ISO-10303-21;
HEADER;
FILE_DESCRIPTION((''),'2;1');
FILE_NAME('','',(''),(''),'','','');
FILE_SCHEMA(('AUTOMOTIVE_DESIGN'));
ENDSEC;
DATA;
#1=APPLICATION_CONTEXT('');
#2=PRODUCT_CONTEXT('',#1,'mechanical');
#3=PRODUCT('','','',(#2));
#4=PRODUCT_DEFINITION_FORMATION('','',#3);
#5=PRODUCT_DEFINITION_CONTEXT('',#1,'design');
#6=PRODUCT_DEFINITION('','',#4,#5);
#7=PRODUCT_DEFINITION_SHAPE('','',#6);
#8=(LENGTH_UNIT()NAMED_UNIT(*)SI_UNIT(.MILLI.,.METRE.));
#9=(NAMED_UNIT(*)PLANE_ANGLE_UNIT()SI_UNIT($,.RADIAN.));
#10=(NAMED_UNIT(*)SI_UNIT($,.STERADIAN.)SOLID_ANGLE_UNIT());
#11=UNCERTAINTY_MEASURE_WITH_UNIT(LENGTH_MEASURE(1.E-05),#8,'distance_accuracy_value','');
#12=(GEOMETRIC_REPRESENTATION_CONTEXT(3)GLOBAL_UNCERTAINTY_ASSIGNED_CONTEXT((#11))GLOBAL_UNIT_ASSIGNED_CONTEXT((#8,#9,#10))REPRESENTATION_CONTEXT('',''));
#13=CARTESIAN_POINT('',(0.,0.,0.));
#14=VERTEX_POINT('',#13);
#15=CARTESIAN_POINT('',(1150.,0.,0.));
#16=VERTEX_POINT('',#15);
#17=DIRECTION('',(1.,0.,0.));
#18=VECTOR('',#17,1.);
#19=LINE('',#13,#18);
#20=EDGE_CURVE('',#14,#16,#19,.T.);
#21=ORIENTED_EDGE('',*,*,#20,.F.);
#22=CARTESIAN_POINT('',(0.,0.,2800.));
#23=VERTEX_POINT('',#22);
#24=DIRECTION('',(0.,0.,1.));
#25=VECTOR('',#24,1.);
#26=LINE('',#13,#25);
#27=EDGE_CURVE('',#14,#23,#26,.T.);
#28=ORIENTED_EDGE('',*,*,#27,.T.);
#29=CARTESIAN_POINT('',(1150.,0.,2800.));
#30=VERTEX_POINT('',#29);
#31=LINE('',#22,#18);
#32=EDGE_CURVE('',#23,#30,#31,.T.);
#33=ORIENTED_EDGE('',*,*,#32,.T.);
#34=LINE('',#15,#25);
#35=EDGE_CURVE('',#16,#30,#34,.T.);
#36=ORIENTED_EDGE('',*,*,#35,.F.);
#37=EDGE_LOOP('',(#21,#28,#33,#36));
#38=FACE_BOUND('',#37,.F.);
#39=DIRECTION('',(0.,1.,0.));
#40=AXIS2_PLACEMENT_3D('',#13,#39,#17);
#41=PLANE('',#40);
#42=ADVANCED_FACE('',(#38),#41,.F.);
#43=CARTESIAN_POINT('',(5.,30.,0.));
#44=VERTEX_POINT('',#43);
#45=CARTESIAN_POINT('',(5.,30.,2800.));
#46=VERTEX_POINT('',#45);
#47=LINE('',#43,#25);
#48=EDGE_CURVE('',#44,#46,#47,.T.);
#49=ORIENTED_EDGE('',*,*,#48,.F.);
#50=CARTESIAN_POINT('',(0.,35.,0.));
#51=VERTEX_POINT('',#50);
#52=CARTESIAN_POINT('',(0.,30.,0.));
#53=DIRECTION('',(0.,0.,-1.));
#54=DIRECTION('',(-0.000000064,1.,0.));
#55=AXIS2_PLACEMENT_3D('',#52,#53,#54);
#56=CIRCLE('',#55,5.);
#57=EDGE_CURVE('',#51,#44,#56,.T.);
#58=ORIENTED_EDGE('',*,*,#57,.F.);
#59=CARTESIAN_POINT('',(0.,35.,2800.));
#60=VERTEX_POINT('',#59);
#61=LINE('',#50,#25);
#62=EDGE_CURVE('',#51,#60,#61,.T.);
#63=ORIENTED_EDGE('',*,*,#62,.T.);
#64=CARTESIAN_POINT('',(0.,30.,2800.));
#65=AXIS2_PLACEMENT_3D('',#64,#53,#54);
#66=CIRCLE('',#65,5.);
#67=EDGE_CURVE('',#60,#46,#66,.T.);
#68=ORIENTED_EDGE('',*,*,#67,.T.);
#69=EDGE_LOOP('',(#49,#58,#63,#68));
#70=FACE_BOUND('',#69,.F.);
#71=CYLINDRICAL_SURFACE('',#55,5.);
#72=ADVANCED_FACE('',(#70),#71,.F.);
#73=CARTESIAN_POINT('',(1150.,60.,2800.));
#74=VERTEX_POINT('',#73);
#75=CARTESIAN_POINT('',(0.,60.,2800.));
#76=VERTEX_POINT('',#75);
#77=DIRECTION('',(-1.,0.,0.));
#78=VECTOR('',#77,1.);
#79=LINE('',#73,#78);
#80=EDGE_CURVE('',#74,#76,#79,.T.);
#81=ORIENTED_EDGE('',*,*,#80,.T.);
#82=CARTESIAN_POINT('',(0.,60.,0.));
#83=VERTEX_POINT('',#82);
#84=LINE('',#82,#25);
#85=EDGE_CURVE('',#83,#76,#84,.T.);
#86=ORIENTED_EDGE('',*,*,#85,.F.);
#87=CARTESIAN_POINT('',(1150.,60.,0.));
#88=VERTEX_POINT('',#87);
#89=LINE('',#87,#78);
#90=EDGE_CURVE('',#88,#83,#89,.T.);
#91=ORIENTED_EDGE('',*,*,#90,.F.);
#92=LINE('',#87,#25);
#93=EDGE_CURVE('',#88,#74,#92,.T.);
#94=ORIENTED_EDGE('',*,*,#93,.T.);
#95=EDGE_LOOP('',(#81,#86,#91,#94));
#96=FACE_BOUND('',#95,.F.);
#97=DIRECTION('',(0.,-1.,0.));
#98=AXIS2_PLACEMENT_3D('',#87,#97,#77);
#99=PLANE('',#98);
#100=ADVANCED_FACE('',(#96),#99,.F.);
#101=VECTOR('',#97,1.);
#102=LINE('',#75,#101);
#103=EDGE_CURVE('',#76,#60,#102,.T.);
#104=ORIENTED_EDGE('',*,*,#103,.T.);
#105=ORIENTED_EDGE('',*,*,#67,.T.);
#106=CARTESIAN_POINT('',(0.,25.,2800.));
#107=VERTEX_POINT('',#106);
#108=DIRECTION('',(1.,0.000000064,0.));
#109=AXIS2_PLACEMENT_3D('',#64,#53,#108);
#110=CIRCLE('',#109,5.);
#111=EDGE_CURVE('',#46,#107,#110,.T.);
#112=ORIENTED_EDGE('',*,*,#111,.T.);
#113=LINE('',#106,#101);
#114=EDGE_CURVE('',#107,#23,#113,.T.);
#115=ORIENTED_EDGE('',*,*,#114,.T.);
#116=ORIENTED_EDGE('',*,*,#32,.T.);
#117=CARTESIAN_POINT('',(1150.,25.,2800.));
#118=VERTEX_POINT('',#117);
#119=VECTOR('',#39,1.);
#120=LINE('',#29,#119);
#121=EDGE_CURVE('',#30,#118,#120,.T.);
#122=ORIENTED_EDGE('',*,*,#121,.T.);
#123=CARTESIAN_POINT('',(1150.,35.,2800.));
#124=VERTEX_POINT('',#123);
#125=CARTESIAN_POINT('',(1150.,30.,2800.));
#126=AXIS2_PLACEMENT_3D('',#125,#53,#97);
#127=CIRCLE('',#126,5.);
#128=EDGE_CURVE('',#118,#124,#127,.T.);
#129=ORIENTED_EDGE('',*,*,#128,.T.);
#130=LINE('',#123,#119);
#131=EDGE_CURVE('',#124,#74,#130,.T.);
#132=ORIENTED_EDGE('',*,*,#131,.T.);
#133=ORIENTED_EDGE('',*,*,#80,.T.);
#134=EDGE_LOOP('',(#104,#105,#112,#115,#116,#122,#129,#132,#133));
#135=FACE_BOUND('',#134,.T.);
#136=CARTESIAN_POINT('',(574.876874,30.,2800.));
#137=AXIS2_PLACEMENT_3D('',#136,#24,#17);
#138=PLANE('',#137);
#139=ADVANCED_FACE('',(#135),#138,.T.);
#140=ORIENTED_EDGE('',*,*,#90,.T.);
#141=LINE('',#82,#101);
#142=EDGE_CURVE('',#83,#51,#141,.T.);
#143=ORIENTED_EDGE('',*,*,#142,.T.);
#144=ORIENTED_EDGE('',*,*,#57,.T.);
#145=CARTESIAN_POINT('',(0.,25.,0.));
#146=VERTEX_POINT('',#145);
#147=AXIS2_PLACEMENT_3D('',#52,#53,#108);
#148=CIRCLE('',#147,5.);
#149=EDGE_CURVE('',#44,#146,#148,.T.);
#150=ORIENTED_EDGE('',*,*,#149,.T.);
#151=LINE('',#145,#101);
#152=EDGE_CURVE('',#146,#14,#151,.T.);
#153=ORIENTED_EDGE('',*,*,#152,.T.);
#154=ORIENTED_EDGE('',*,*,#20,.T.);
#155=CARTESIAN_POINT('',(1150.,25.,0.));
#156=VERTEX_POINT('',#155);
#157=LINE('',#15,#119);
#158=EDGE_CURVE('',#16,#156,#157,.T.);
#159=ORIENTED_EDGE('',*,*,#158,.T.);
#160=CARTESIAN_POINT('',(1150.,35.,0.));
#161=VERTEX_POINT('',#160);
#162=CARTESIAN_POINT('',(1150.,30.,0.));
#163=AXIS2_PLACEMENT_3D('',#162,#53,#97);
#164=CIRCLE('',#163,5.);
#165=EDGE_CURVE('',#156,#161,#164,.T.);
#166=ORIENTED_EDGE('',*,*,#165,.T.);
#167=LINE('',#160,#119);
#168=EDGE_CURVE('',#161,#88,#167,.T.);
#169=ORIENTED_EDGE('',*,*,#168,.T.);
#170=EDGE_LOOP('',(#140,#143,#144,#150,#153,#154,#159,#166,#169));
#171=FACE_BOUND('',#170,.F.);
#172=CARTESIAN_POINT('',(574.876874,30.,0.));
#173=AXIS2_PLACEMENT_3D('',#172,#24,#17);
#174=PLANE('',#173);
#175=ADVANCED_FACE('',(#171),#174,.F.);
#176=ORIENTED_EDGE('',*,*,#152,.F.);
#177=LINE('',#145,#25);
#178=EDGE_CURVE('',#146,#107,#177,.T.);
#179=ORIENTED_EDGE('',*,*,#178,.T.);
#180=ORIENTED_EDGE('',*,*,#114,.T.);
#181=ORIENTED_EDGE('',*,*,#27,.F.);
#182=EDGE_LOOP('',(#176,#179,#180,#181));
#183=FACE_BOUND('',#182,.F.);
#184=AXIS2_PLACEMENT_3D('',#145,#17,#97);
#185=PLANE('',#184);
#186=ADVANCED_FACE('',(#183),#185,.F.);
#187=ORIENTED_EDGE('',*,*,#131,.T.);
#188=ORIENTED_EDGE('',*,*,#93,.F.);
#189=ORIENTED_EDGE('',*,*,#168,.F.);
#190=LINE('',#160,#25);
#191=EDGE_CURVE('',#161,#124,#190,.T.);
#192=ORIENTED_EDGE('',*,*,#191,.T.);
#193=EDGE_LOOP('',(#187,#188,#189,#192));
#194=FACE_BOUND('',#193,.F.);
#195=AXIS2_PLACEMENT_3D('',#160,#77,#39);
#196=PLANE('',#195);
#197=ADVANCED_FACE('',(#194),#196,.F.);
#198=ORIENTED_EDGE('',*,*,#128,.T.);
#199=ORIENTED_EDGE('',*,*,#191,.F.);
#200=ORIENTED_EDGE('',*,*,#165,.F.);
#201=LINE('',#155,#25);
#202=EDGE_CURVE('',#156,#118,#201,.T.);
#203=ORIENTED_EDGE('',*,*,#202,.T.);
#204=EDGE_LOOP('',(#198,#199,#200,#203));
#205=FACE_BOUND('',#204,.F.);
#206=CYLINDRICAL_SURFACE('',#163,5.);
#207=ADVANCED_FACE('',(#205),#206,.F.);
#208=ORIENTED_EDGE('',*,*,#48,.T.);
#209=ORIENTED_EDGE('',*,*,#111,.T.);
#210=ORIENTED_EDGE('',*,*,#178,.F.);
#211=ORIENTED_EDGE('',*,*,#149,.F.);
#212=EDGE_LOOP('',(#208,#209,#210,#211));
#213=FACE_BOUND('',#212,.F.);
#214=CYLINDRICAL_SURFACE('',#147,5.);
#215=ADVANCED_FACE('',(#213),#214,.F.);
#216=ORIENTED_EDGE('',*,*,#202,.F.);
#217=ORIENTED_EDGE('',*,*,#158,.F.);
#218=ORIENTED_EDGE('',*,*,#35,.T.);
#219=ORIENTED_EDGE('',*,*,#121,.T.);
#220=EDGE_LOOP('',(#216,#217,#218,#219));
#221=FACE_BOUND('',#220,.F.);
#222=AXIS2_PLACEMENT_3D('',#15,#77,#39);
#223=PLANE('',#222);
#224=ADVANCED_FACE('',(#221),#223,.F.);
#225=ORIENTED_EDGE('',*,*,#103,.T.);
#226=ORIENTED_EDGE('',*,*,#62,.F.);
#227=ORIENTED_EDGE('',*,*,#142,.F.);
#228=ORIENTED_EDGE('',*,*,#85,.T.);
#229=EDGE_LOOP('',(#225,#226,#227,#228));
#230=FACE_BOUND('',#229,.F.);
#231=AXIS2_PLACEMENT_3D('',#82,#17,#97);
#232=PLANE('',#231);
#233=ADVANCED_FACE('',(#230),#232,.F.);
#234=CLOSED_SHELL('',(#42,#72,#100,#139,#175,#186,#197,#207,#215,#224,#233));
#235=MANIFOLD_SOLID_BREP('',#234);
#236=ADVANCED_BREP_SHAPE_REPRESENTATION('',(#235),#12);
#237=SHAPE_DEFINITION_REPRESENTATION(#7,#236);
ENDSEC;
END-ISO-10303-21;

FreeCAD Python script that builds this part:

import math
import FreeCAD as App
import Part
import Sketcher

V = App.Vector

doc = App.newDocument("Part")
body = doc.addObject("PartDesign::Body", "Body")

# Sketch on XY plane
sketch1 = body.newObject("Sketcher::SketchObject", "Sketch")
sketch1.AttachmentSupport = (doc.getObject("XY_Plane"), [""])
sketch1.MapMode = "FlatFace"
sketch1.addGeometry([
    Part.LineSegment(V(0, 25, 0), V(0, 0, 0)),  # 0
    Part.LineSegment(V(0, 0, 0), V(1150, 0, 0)),  # 1
    Part.LineSegment(V(1150, 0, 0), V(1150, 25, 0)),  # 2
    Part.ArcOfCircle(Part.Circle(V(1150, 30, 0), V(0, 0, 1), 5), math.radians(90), math.radians(270)),  # 3
    Part.LineSegment(V(1150, 35, 0), V(1150, 60, 0)),  # 4
    Part.LineSegment(V(1150, 60, 0), V(0, 60, 0)),  # 5
    Part.LineSegment(V(0, 60, 0), V(0, 35, 0)),  # 6
    Part.ArcOfCircle(Part.Circle(V(0, 30, 0), V(0, 0, 1), 5), math.radians(0), math.radians(90)),  # 7
    Part.ArcOfCircle(Part.Circle(V(0, 30, 0), V(0, 0, 1), 5), math.radians(-90), math.radians(0)),  # 8
], False)
sketch1.addConstraint([
    Sketcher.Constraint("Coincident", 0, 2, 1, 1),
    Sketcher.Constraint("Coincident", 1, 2, 2, 1),
    Sketcher.Constraint("Coincident", 2, 2, 3, 2),
    Sketcher.Constraint("Coincident", 3, 1, 4, 1),
    Sketcher.Constraint("Coincident", 4, 2, 5, 1),
    Sketcher.Constraint("Coincident", 5, 2, 6, 1),
    Sketcher.Constraint("Coincident", 6, 2, 7, 2),
    Sketcher.Constraint("Tangent", 7, 1, 8, 2),
    Sketcher.Constraint("Coincident", 8, 1, 0, 1),
    Sketcher.Constraint("Vertical", 0),
    Sketcher.Constraint("Horizontal", 1),
    Sketcher.Constraint("Vertical", 2),
    Sketcher.Constraint("Vertical", 4),
    Sketcher.Constraint("Horizontal", 5),
    Sketcher.Constraint("Vertical", 6),
    Sketcher.Constraint("Coincident", 0, 2, -1, 1),
    Sketcher.Constraint("Equal", 3, 7),
    Sketcher.Constraint("Equal", 7, 8),
    Sketcher.Constraint("PointOnObject", 7, 3, -2),
    Sketcher.Constraint("PointOnObject", 5, 2, -2),
    Sketcher.Constraint("Horizontal", 3, 3, 7, 3),
    Sketcher.Constraint("Horizontal", 8, 3, 7, 1),
    Sketcher.Constraint("Vertical", 3, 3, 1, 2),
    Sketcher.Constraint("Vertical", 2, 2, 3, 1),
    Sketcher.Constraint("Equal", 2, 4),
    Sketcher.Constraint("Radius", 3, 5.0),
    Sketcher.Constraint("DistanceX", 1, 1, 1, 2, 1150.0),
    Sketcher.Constraint("DistanceY", 0, 2, 0, 1, 25.0),
])
pad1 = body.newObject("PartDesign::Pad", "Pad")
pad1.Profile = sketch1
pad1.Length = 2800

doc.recompute()
